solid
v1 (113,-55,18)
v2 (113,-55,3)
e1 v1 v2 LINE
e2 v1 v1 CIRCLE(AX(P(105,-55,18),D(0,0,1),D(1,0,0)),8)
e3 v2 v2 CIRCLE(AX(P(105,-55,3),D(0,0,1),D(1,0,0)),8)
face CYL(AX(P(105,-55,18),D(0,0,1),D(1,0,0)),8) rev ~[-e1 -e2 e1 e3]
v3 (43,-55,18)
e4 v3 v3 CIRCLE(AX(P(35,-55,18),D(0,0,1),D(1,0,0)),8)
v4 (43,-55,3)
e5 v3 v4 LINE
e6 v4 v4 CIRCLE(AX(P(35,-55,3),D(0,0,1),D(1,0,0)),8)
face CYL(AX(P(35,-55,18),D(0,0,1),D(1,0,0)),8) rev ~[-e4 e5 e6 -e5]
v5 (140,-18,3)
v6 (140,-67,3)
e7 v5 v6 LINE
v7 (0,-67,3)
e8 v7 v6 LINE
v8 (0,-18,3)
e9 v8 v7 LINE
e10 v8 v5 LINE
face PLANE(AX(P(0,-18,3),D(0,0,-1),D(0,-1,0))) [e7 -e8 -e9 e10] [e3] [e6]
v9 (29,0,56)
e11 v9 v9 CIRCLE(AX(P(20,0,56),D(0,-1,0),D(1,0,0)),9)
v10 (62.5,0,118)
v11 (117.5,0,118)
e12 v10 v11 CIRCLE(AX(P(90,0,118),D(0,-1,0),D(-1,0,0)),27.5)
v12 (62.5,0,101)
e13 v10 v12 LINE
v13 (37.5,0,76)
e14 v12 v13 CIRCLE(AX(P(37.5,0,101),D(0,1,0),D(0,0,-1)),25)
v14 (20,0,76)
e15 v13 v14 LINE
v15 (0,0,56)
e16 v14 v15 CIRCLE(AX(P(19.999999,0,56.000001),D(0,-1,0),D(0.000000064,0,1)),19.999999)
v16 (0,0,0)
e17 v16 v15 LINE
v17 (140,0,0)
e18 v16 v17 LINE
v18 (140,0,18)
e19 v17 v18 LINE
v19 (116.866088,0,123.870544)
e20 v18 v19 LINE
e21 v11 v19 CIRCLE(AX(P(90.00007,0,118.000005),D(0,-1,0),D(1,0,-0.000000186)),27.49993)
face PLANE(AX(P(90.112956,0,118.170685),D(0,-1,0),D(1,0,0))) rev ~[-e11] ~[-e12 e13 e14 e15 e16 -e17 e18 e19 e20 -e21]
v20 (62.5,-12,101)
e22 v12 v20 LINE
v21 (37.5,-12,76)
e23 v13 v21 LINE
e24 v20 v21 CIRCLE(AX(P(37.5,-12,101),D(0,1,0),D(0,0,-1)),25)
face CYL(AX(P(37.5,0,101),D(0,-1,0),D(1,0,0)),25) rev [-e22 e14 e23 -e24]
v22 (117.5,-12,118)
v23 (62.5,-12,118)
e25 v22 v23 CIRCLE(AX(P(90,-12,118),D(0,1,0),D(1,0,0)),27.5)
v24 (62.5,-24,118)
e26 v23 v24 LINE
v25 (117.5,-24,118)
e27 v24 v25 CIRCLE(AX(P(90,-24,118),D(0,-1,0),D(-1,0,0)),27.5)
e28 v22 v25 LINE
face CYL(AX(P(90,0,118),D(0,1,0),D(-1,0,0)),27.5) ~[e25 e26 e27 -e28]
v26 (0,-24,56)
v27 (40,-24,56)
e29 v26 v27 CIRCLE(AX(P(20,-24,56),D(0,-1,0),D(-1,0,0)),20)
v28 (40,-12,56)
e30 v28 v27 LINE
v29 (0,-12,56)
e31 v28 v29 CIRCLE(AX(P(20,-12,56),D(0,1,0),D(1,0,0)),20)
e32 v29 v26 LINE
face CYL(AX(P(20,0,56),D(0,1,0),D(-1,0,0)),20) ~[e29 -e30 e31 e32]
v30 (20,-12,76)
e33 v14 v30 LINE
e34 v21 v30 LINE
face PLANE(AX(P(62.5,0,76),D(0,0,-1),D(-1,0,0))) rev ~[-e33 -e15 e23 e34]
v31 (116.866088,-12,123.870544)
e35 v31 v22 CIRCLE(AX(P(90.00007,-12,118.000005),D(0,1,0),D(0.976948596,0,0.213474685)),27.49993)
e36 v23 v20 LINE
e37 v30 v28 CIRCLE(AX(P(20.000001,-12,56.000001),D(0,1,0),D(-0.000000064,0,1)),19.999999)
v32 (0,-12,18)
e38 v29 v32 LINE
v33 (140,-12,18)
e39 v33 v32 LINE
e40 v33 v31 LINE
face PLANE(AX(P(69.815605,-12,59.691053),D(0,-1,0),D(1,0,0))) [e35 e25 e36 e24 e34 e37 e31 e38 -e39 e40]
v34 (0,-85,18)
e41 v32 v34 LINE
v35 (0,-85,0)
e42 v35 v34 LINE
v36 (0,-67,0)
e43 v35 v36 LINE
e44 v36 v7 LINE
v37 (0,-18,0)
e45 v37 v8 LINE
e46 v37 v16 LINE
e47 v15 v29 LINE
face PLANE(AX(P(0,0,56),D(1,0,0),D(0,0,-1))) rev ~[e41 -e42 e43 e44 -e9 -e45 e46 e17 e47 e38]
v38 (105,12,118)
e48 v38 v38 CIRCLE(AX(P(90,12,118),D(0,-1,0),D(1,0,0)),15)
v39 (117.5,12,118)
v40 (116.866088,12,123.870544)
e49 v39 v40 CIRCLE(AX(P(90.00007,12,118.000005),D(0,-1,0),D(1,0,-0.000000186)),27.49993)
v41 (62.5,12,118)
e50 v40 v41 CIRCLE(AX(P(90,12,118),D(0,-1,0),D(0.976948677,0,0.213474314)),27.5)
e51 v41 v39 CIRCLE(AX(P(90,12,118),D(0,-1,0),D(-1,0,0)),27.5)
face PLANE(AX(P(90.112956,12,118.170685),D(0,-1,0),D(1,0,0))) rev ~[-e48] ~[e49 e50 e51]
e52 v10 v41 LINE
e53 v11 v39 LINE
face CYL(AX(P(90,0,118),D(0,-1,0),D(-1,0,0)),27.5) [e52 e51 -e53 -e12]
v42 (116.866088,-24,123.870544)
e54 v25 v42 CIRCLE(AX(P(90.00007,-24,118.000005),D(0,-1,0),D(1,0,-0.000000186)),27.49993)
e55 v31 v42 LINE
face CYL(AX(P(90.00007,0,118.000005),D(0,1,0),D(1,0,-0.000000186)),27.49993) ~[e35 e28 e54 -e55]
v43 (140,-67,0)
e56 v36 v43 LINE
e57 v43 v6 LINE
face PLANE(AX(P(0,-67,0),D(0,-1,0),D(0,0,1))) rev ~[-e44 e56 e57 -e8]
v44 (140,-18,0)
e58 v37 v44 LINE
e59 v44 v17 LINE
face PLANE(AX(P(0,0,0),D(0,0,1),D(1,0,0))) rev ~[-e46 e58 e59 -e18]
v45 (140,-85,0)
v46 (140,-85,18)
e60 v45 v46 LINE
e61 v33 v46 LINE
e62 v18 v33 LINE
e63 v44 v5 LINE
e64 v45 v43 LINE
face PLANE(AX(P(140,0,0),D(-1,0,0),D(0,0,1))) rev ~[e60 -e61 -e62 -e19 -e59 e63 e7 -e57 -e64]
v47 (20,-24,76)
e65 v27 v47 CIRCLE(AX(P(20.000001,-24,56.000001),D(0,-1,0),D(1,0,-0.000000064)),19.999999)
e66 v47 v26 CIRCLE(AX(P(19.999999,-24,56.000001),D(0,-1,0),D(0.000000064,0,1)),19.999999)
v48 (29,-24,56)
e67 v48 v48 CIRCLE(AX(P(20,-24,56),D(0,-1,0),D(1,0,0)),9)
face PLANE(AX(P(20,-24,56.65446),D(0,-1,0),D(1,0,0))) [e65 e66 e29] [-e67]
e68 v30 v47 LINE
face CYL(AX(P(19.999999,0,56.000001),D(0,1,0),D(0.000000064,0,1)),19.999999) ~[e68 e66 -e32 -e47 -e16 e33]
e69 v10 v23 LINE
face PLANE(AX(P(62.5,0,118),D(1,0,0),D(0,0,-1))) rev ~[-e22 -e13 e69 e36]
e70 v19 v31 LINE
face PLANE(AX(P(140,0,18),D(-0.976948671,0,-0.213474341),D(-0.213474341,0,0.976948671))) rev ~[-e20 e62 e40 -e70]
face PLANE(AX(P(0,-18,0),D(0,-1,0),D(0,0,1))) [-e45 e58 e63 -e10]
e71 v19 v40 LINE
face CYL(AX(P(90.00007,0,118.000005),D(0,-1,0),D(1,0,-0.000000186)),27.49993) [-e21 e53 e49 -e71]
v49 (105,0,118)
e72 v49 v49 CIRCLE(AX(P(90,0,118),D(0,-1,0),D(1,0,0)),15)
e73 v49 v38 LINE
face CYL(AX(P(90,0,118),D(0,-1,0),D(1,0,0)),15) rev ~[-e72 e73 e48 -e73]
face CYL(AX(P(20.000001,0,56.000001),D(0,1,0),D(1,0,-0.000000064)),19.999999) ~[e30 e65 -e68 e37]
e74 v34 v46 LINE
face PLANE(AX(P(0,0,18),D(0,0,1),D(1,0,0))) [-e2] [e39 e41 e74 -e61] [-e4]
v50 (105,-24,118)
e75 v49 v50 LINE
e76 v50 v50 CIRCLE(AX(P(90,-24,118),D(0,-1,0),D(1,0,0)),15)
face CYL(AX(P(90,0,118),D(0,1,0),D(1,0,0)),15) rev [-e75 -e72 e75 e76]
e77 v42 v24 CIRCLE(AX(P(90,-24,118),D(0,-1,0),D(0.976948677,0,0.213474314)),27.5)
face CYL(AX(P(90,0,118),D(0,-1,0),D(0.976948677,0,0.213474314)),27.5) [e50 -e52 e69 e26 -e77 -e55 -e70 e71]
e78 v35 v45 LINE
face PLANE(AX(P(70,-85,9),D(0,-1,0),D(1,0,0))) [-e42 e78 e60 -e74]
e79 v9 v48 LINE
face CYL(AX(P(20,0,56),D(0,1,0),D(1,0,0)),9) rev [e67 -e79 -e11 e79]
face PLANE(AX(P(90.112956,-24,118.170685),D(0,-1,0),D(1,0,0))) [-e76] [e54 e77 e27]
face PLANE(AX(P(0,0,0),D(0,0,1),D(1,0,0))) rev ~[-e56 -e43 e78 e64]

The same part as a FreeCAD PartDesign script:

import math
import FreeCAD as App
import Part
import Sketcher
from FreeCAD import Vector


def edges_at(feature, points):
    """Names of the edges that pass closest to the given points."""
    edges = feature.Shape.Edges
    near = lambda p: min(range(len(edges)), key=lambda i: edges[i].distToShape(Part.Vertex(*p))[0])
    return sorted({f"Edge{near(p) + 1}" for p in points})


def add_polygon(sketch, points):
    """Adds a closed chain of lines whose ends are joined by coincident constraints."""
    first, n = sketch.GeometryCount, len(points)
    for a, b in zip(points, points[1:] + points[:1]):
        sketch.addGeometry(Part.LineSegment(App.Vector(*a, 0), App.Vector(*b, 0)), False)
    for i in range(n):
        sketch.addConstraint(Sketcher.Constraint("Coincident", first + i, 2, first + (i + 1) % n, 1))

doc = App.newDocument("Part")
body = doc.addObject("PartDesign::Body", "Body")

sketch1 = body.newObject("Sketcher::SketchObject", "Sketch")
sketch1.AttachmentSupport = (doc.getObject("XZ_Plane"), [""])
sketch1.MapMode = "FlatFace"
sketch1.addGeometry([
    Part.ArcOfCircle(Part.Circle(Vector(20, 56, 0), Vector(0, 0, 1), 20), math.radians(0), math.radians(90)),
    Part.ArcOfCircle(Part.Circle(Vector(20, 56, 0), Vector(0, 0, 1), 20), math.radians(180), math.radians(360)),
    Part.LineSegment(Vector(0, 56, 0), Vector(0, 0, 0)),
    Part.LineSegment(Vector(0, 0, 0), Vector(140, 0, 0)),
    Part.LineSegment(Vector(140, 0, 0), Vector(140, 18, 0)),
    Part.LineSegment(Vector(140, 18, 0), Vector(117, 124, 0)),
    Part.ArcOfCircle(Part.Circle(Vector(90, 118, 0), Vector(0, 0, 1), 27), math.radians(0), math.radians(12.33)),
    Part.ArcOfCircle(Part.Circle(Vector(90, 118, 0), Vector(0, 0, 1), 28), math.radians(180), math.radians(360)),
    Part.LineSegment(Vector(62, 118, 0), Vector(62, 76, 0)),
    Part.LineSegment(Vector(62, 76, 0), Vector(20, 76, 0)),
], False)
sketch1.addConstraint([
    Sketcher.Constraint("Tangent", 0, 1, 1, 2),
    Sketcher.Constraint("Tangent", 1, 1, 2, 1),
    Sketcher.Constraint("Coincident", 2, 2, 3, 1),
    Sketcher.Constraint("Coincident", 3, 2, 4, 1),
    Sketcher.Constraint("Coincident", 4, 2, 5, 1),
    Sketcher.Constraint("Tangent", 5, 2, 6, 2),
    Sketcher.Constraint("Tangent", 6, 1, 7, 2),
    Sketcher.Constraint("Tangent", 7, 1, 8, 1),
    Sketcher.Constraint("Coincident", 8, 2, 9, 1),
    Sketcher.Constraint("Tangent", 9, 2, 0, 2),
    Sketcher.Constraint("Vertical", 2),
    Sketcher.Constraint("Horizontal", 3),
    Sketcher.Constraint("Vertical", 4),
    Sketcher.Constraint("Vertical", 8),
    Sketcher.Constraint("Horizontal", 9),
    Sketcher.Constraint("Coincident", 2, 2, -1, 1),
    Sketcher.Constraint("Equal", 0, 1),
    Sketcher.Constraint("Horizontal", 1, 3, 0, 1),
    Sketcher.Constraint("Horizontal", 7, 3, 6, 1),
    Sketcher.Constraint("Radius", 0, 19.999999),
    Sketcher.Constraint("Radius", 7, 27.5),
    Sketcher.Constraint("DistanceX", 3, 1, 3, 2, 140.0),
    Sketcher.Constraint("DistanceY", 2, 2, 2, 1, 56.0),
    Sketcher.Constraint("DistanceY", 4, 1, 4, 2, 18.0),
    Sketcher.Constraint("DistanceY", 8, 2, 8, 1, 42.0),
    Sketcher.Constraint("DistanceX", 9, 2, 9, 1, 42.5),
    Sketcher.Constraint("Radius", 6, 27.49993),
])
pad1 = body.newObject("PartDesign::Pad", "Pad")
pad1.Profile = sketch1
pad1.Length = 12
doc.recompute()

fillet = body.newObject("PartDesign::Fillet", "Fillet")
fillet.Base = (pad1, edges_at(pad1, [(62.5, -6, 76)]))
fillet.Radius = 25

sketch2 = body.newObject("Sketcher::SketchObject", "Sketch001")
sketch2.AttachmentSupport = (doc.getObject("XZ_Plane"), [""])
sketch2.MapMode = "FlatFace"
sketch2.addGeometry([
    Part.ArcOfCircle(Part.Circle(Vector(20, 56, 0), Vector(0, 0, 1), 20), math.radians(180), math.radians(360)),
    Part.ArcOfCircle(Part.Circle(Vector(20, 56, 0), Vector(0, 0, 1), 20), math.radians(0), math.radians(90)),
    Part.ArcOfCircle(Part.Circle(Vector(20, 56, 0), Vector(0, 0, 1), 20), math.radians(90), math.radians(180)),
    Part.Circle(Vector(20, 56, 0), Vector(0, 0, 1), 9),
], False)
sketch2.addConstraint([
    Sketcher.Constraint("Tangent", 0, 2, 1, 1),
    Sketcher.Constraint("Tangent", 1, 2, 2, 1),
    Sketcher.Constraint("Tangent", 2, 2, 0, 1),
    Sketcher.Constraint("Coincident", 3, 3, 0, 3),
    Sketcher.Constraint("PointOnObject", 2, 2, -2),
    Sketcher.Constraint("Horizontal", 3, 3, 0, 2),
    Sketcher.Constraint("Horizontal", 0, 2, 2, 2),
    Sketcher.Constraint("Vertical", 3, 3, 1, 2),
    Sketcher.Constraint("Diameter", 3, 18.0),
    Sketcher.Constraint("Radius", 0, 20.0),
    Sketcher.Constraint("DistanceY", -1, 1, 0, 3, 56.0),
])
pad2 = body.newObject("PartDesign::Pad", "Pad001")
pad2.Profile = sketch2
pad2.Length = 24

sketch3 = body.newObject("Sketcher::SketchObject", "Sketch002")
sketch3.AttachmentSupport = (doc.getObject("XZ_Plane"), [""])
sketch3.MapMode = "FlatFace"
sketch3.addGeometry([
    Part.ArcOfCircle(Part.Circle(Vector(90, 118, 0), Vector(0, 0, 1), 27.5), math.radians(12.326034), math.radians(180.000001)),
    Part.ArcOfCircle(Part.Circle(Vector(90, 118, 0), Vector(0, 0, 1), 27.5), math.radians(180), math.radians(360)),
    Part.ArcOfCircle(Part.Circle(Vector(90.00007, 118.000005, 0), Vector(0, 0, 1), 27.49993), math.radians(-0.000011), math.radians(12.326056)),
    Part.Circle(Vector(90, 118, 0), Vector(0, 0, 1), 15),
], False)
sketch3.addConstraint([
    Sketcher.Constraint("Coincident", 0, 2, 1, 1),
    Sketcher.Constraint("Coincident", 1, 2, 2, 1),
    Sketcher.Constraint("Coincident", 2, 2, 0, 1),
    Sketcher.Constraint("Coincident", 1, 3, 0, 3),
    Sketcher.Constraint("Coincident", 3, 3, 0, 3),
    Sketcher.Constraint("Diameter", 3, 30.0),
    Sketcher.Constraint("Radius", 0, 27.5),
    Sketcher.Constraint("DistanceX", -1, 1, 0, 3, 90.0),
    Sketcher.Constraint("DistanceY", -1, 1, 0, 3, 118.0),
    Sketcher.Constraint("DistanceY", -1, 1, 0, 2, 118.0),
    Sketcher.Constraint("DistanceY", -1, 1, 1, 2, 118.0),
    Sketcher.Constraint("Radius", 2, 27.49993),
    Sketcher.Constraint("DistanceX", -1, 1, 2, 2, 116.866088),
])
pad3 = body.newObject("PartDesign::Pad", "Pad002")
pad3.Profile = sketch3
pad3.Length = 24

sketch4 = body.newObject("Sketcher::SketchObject", "Sketch003")
sketch4.AttachmentSupport = (doc.getObject("XZ_Plane"), [""])
sketch4.MapMode = "FlatFace"
sketch4.addGeometry([
    Part.ArcOfCircle(Part.Circle(Vector(90, 118, 0), Vector(0, 0, 1), 27.5), math.radians(12.326034), math.radians(180.000001)),
    Part.ArcOfCircle(Part.Circle(Vector(90, 118, 0), Vector(0, 0, 1), 27.5), math.radians(180), math.radians(360)),
    Part.ArcOfCircle(Part.Circle(Vector(90.00007, 118.000005, 0), Vector(0, 0, 1), 27.49993), math.radians(-0.000011), math.radians(12.326056)),
    Part.Circle(Vector(90, 118, 0), Vector(0, 0, 1), 15),
], False)
sketch4.addConstraint([
    Sketcher.Constraint("Coincident", 0, 2, 1, 1),
    Sketcher.Constraint("Coincident", 1, 2, 2, 1),
    Sketcher.Constraint("Coincident", 2, 2, 0, 1),
    Sketcher.Constraint("Coincident", 1, 3, 0, 3),
    Sketcher.Constraint("Coincident", 3, 3, 0, 3),
    Sketcher.Constraint("Diameter", 3, 30.0),
    Sketcher.Constraint("Radius", 0, 27.5),
    Sketcher.Constraint("DistanceX", -1, 1, 0, 3, 90.0),
    Sketcher.Constraint("DistanceY", -1, 1, 0, 3, 118.0),
    Sketcher.Constraint("DistanceY", -1, 1, 0, 2, 118.0),
    Sketcher.Constraint("DistanceY", -1, 1, 1, 2, 118.0),
    Sketcher.Constraint("Radius", 2, 27.49993),
    Sketcher.Constraint("DistanceX", -1, 1, 2, 2, 116.866088),
])
pad4 = body.newObject("PartDesign::Pad", "Pad003")
pad4.Profile = sketch4
pad4.Length = 12
pad4.Reversed = True

sketch5 = body.newObject("Sketcher::SketchObject", "Sketch004")
sketch5.AttachmentSupport = (doc.getObject("XZ_Plane"), [""])
sketch5.MapMode = "FlatFace"
add_polygon(sketch5, [(0, 18), (0, 0), (140, 0), (140, 18)])
sketch5.addConstraint([
    Sketcher.Constraint("Vertical", 0),
    Sketcher.Constraint("Horizontal", 1),
    Sketcher.Constraint("Vertical", 2),
    Sketcher.Constraint("Horizontal", 3),
    Sketcher.Constraint("Coincident", 0, 2, -1, 1),
    Sketcher.Constraint("DistanceX", 1, 1, 1, 2, 140.0),
    Sketcher.Constraint("DistanceY", 0, 2, 0, 1, 18.0),
])
pad5 = body.newObject("PartDesign::Pad", "Pad004")
pad5.Profile = sketch5
pad5.Length = 85

sketch6 = body.newObject("Sketcher::SketchObject", "Sketch005")
sketch6.AttachmentSupport = (doc.getObject("YZ_Plane"), [""])
sketch6.MapMode = "FlatFace"
add_polygon(sketch6, [(-18, 3), (-18, 0), (-67, 0), (-67, 3)])
sketch6.addConstraint([
    Sketcher.Constraint("Vertical", 0),
    Sketcher.Constraint("Horizontal", 1),
    Sketcher.Constraint("Vertical", 2),
    Sketcher.Constraint("Horizontal", 3),
    Sketcher.Constraint("PointOnObject", 0, 2, -1),
    Sketcher.Constraint("DistanceX", 1, 2, 1, 1, 49.0),
    Sketcher.Constraint("DistanceY", 0, 2, 0, 1, 3.0),
    Sketcher.Constraint("DistanceX", 0, 2, -1, 1, 18.0),
])
pocket1 = body.newObject("PartDesign::Pocket", "Pocket")
pocket1.Profile = sketch6
pocket1.Type = "ThroughAll"
pocket1.Reversed = True

sketch7 = body.newObject("Sketcher::SketchObject", "Sketch006")
sketch7.AttachmentSupport = (doc.getObject("XY_Plane"), [""])
sketch7.MapMode = "FlatFace"
sketch7.AttachmentOffset = App.Placement(Vector(0, 0, 18), App.Rotation())
sketch7.addGeometry([
    Part.Circle(Vector(35, -55, 0), Vector(0, 0, 1), 8),
    Part.Circle(Vector(105, -55, 0), Vector(0, 0, 1), 8),
], False)
sketch7.addConstraint([
    Sketcher.Constraint("Equal", 0, 1),
    Sketcher.Constraint("Horizontal", 0, 3, 1, 3),
    Sketcher.Constraint("Diameter", 0, 16.0),
    Sketcher.Constraint("DistanceX", -1, 1, 0, 3, 35.0),
    Sketcher.Constraint("DistanceY", 0, 3, -1, 1, 55.0),
    Sketcher.Constraint("DistanceX", -1, 1, 1, 3, 105.0),
])
pocket2 = body.newObject("PartDesign::Pocket", "Pocket001")
pocket2.Profile = sketch7
pocket2.Type = "ThroughAll"

doc.recompute()
